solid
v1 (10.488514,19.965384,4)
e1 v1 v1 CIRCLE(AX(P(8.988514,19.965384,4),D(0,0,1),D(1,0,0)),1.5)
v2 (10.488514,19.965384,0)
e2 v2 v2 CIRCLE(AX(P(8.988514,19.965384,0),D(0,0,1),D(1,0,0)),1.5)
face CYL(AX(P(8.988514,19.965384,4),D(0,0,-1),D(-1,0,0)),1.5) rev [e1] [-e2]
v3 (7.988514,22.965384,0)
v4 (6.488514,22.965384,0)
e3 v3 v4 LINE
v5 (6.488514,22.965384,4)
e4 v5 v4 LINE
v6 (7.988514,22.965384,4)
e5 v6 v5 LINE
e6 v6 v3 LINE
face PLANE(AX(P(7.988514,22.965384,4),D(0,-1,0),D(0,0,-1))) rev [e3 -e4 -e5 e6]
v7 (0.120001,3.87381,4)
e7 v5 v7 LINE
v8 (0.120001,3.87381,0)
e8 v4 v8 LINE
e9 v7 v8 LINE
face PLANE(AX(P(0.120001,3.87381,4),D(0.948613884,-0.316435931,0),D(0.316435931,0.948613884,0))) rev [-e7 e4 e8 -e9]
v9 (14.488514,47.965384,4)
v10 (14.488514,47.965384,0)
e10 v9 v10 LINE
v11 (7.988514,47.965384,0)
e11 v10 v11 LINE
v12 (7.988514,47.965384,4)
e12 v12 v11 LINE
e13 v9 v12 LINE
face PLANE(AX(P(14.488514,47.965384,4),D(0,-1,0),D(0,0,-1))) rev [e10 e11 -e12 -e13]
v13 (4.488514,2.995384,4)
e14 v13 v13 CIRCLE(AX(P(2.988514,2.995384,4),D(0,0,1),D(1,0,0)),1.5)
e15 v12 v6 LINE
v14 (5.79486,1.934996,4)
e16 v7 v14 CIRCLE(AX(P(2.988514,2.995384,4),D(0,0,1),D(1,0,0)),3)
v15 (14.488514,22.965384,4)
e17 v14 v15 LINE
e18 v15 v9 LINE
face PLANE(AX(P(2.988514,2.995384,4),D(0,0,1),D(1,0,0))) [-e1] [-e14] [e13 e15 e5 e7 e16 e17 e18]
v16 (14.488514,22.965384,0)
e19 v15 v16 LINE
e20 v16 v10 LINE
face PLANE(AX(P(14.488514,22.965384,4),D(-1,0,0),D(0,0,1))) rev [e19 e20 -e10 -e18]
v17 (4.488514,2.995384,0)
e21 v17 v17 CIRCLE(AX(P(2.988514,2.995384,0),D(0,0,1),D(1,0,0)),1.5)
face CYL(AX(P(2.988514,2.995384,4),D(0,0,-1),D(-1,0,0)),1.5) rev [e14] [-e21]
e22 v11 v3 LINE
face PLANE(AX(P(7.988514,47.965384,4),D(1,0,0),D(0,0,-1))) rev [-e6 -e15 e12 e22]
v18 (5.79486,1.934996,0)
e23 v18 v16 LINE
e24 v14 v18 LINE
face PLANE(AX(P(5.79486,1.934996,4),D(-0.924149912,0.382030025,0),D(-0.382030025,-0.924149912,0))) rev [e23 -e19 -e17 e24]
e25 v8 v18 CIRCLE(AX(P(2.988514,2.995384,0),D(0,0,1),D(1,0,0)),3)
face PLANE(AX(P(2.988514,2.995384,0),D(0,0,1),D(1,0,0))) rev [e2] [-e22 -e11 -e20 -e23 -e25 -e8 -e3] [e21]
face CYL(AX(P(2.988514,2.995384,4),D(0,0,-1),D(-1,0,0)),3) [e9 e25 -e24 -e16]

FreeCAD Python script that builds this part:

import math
import FreeCAD as App
import Part
import Sketcher
Q = App.Units.Quantity

doc = App.newDocument("Part")
body = doc.addObject("PartDesign::Body", "Body")

# Sketch on XY plane
sketch1 = body.newObject("Sketcher::SketchObject", "Sketch")
sketch1.AttachmentSupport = (doc.getObject("XY_Plane"), [""])
sketch1.MapMode = "FlatFace"
sketch1.addGeometry(Part.LineSegment(App.Vector(14.5, 23, 0), App.Vector(14.5, 48, 0)), False)
sketch1.addGeometry(Part.LineSegment(App.Vector(14.5, 48, 0), App.Vector(8, 48, 0)), False)
sketch1.addGeometry(Part.LineSegment(App.Vector(8, 48, 0), App.Vector(8, 23, 0)), False)
sketch1.addGeometry(Part.LineSegment(App.Vector(8, 23, 0), App.Vector(6.5, 23, 0)), False)
sketch1.addGeometry(Part.LineSegment(App.Vector(6.5, 23, 0), App.Vector(0.1, 3.9, 0)), False)
sketch1.addGeometry(Part.ArcOfCircle(Part.Circle(App.Vector(3, 3, 0), App.Vector(0, 0, 1), 3), math.radians(163), math.radians(339)), False)
sketch1.addGeometry(Part.LineSegment(App.Vector(5.8, 1.9, 0), App.Vector(14.5, 23, 0)), False)
sketch1.addGeometry(Part.Circle(App.Vector(3, 3, 0), App.Vector(0, 0, 1), 1.5), False)
sketch1.addGeometry(Part.Circle(App.Vector(9, 20, 0), App.Vector(0, 0, 1), 1.5), False)
sketch1.addConstraint(Sketcher.Constraint("Coincident", 0, 2, 1, 1))
sketch1.addConstraint(Sketcher.Constraint("Coincident", 1, 2, 2, 1))
sketch1.addConstraint(Sketcher.Constraint("Coincident", 2, 2, 3, 1))
sketch1.addConstraint(Sketcher.Constraint("Coincident", 3, 2, 4, 1))
sketch1.addConstraint(Sketcher.Constraint("Coincident", 4, 2, 5, 1))
sketch1.addConstraint(Sketcher.Constraint("Coincident", 5, 2, 6, 1))
sketch1.addConstraint(Sketcher.Constraint("Coincident", 6, 2, 0, 1))
sketch1.addConstraint(Sketcher.Constraint("Vertical", 0))
sketch1.addConstraint(Sketcher.Constraint("Horizontal", 1))
sketch1.addConstraint(Sketcher.Constraint("Vertical", 2))
sketch1.addConstraint(Sketcher.Constraint("Horizontal", 3))
sketch1.addConstraint(Sketcher.Constraint("Coincident", 7, 3, 5, 3))
sketch1.addConstraint(Sketcher.Constraint("Equal", 7, 8))
sketch1.addConstraint(Sketcher.Constraint("Horizontal", 3, 2, 6, 2))
sketch1.addConstraint(Sketcher.Constraint("Diameter", 7, Q("3 mm")))
sketch1.addConstraint(Sketcher.Constraint("Radius", 5, Q("3 mm")))
sketch1.addConstraint(Sketcher.Constraint("DistanceY", 0, 1, 0, 2, Q("25 mm")))
sketch1.addConstraint(Sketcher.Constraint("DistanceX", 1, 2, 1, 1, Q("6.5 mm")))
sketch1.addConstraint(Sketcher.Constraint("DistanceX", 3, 2, 3, 1, Q("1.5 mm")))
sketch1.addConstraint(Sketcher.Constraint("DistanceX", 5, 3, 8, 3, Q("6 mm")))
sketch1.addConstraint(Sketcher.Constraint("DistanceY", 8, 3, 0, 2, Q("28 mm")))
sketch1.addConstraint(Sketcher.Constraint("DistanceX", 1, 2, 8, 3, Q("1 mm")))
sketch1.addConstraint(Sketcher.Constraint("DistanceX", -1, 1, 4, 2, Q("0.120001 mm")))
sketch1.addConstraint(Sketcher.Constraint("DistanceY", 5, 3, 8, 3, Q("16.97 mm")))
sketch1.addConstraint(Sketcher.Constraint("Distance", 4, Q("20.125759 mm")))
sketch1.addConstraint(Sketcher.Constraint("Distance", 6, Q("22.756469 mm")))
sketch1.addConstraint(Sketcher.Constraint("DistanceY", -1, 1, 4, 2, Q("3.87381 mm")))
pad1 = body.newObject("PartDesign::Pad", "Pad")
pad1.Profile = sketch1
pad1.Length = 4

doc.recompute()
